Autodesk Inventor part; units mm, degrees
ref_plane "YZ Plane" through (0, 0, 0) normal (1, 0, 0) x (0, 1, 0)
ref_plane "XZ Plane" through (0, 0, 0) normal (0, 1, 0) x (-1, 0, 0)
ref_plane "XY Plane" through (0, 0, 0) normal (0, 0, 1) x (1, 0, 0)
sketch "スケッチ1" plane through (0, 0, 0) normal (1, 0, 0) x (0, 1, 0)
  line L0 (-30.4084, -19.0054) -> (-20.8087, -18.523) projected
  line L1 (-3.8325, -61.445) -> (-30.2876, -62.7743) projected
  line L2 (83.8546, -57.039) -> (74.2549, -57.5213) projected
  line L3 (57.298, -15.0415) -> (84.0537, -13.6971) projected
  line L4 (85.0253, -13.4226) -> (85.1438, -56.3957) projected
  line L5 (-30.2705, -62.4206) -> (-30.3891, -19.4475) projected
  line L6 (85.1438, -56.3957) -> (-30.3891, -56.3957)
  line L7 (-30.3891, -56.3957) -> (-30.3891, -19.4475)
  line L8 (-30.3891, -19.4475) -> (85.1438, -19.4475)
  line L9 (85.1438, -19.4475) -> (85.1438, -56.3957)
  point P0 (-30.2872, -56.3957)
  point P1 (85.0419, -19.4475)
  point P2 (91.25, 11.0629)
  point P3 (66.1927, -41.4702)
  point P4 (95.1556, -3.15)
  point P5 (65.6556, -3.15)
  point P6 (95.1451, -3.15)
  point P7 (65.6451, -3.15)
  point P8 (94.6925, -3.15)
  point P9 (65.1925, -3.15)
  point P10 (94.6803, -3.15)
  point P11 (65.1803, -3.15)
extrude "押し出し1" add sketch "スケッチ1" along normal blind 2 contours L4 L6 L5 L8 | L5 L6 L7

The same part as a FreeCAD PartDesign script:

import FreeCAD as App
import Part
import Sketcher


def add_polygon(sketch, points):
    """Adds a closed chain of lines whose ends are joined by coincident constraints."""
    first, n = sketch.GeometryCount, len(points)
    for a, b in zip(points, points[1:] + points[:1]):
        sketch.addGeometry(Part.LineSegment(App.Vector(*a, 0), App.Vector(*b, 0)), False)
    for i in range(n):
        sketch.addConstraint(Sketcher.Constraint("Coincident", first + i, 2, first + (i + 1) % n, 1))

doc = App.newDocument("Part")
body = doc.addObject("PartDesign::Body", "Body")

# Sketch on YZ plane
sketch1 = doc.addObject("Sketcher::SketchObject", "Sketch")
body.addObject(sketch1)
sketch1.AttachmentSupport = (doc.YZ_Plane, [""])
sketch1.MapMode = "FlatFace"
add_polygon(sketch1, [(85.1438, -56.3957), (85.041914, -19.4475), (-30.3891, -19.4475), (-30.3891, -56.3957)])  # lines 0-3
sketch1.addConstraint(Sketcher.Constraint("Horizontal", 1))
sketch1.addConstraint(Sketcher.Constraint("Vertical", 2))
sketch1.addConstraint(Sketcher.Constraint("Horizontal", 3))
sketch1.addConstraint(Sketcher.Constraint("DistanceX", 1, 2, 1, 1, 115.431))
sketch1.addConstraint(Sketcher.Constraint("DistanceX", 3, 1, 3, 2, 115.533))
sketch1.addConstraint(Sketcher.Constraint("DistanceY", 2, 2, 2, 1, 36.9482))
sketch1.addConstraint(Sketcher.Constraint("DistanceX", -1, 1, 0, 2, 85.042))
sketch1.addConstraint(Sketcher.Constraint("DistanceY", 0, 2, -1, 1, 19.4475))
pad1 = doc.addObject("PartDesign::Pad", "Pad")
body.addObject(pad1)
pad1.Profile = sketch1
pad1.Length = 2

doc.recompute()
